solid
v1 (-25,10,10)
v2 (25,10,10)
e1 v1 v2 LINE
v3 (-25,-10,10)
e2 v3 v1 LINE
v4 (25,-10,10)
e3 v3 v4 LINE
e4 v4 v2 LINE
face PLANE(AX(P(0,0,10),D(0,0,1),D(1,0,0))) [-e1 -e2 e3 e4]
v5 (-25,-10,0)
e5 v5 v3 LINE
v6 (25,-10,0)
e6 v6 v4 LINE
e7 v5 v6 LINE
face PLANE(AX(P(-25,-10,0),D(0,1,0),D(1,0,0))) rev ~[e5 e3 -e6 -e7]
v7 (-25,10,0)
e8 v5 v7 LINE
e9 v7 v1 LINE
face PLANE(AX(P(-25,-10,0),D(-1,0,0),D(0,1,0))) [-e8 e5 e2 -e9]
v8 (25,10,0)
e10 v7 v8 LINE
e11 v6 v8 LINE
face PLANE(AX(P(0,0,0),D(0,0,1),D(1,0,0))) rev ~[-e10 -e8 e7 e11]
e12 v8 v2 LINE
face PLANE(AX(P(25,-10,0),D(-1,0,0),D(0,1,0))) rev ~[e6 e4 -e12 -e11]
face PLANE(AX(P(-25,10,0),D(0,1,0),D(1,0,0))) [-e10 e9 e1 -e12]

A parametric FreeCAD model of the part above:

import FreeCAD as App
import Part
import Sketcher
Q = App.Units.Quantity

doc = App.newDocument("Part")
body = doc.addObject("PartDesign::Body", "Body")

# Sketch on XY plane
sketch1 = body.newObject("Sketcher::SketchObject", "Sketch")
sketch1.AttachmentSupport = (doc.getObject("XY_Plane"), [""])
sketch1.MapMode = "FlatFace"
sketch1.addGeometry(Part.LineSegment(App.Vector(-25, 10, 0), App.Vector(-25, -10, 0)), False)
sketch1.addGeometry(Part.LineSegment(App.Vector(-25, -10, 0), App.Vector(25, -10, 0)), False)
sketch1.addGeometry(Part.LineSegment(App.Vector(25, -10, 0), App.Vector(25, 10, 0)), False)
sketch1.addGeometry(Part.LineSegment(App.Vector(25, 10, 0), App.Vector(-25, 10, 0)), False)
sketch1.addConstraint(Sketcher.Constraint("Coincident", 0, 2, 1, 1))
sketch1.addConstraint(Sketcher.Constraint("Coincident", 1, 2, 2, 1))
sketch1.addConstraint(Sketcher.Constraint("Coincident", 2, 2, 3, 1))
sketch1.addConstraint(Sketcher.Constraint("Coincident", 3, 2, 0, 1))
sketch1.addConstraint(Sketcher.Constraint("Vertical", 0))
sketch1.addConstraint(Sketcher.Constraint("Horizontal", 1))
sketch1.addConstraint(Sketcher.Constraint("Vertical", 2))
sketch1.addConstraint(Sketcher.Constraint("Horizontal", 3))
sketch1.addConstraint(Sketcher.Constraint("Symmetric", 0, 2, 2, 2, -1, 1))
sketch1.addConstraint(Sketcher.Constraint("DistanceX", 1, 1, 1, 2, Q("50 mm")))
sketch1.addConstraint(Sketcher.Constraint("DistanceY", 0, 2, 0, 1, Q("20 mm")))
pad1 = body.newObject("PartDesign::Pad", "Pad")
pad1.Profile = sketch1
pad1.Length = 10

doc.recompute()
